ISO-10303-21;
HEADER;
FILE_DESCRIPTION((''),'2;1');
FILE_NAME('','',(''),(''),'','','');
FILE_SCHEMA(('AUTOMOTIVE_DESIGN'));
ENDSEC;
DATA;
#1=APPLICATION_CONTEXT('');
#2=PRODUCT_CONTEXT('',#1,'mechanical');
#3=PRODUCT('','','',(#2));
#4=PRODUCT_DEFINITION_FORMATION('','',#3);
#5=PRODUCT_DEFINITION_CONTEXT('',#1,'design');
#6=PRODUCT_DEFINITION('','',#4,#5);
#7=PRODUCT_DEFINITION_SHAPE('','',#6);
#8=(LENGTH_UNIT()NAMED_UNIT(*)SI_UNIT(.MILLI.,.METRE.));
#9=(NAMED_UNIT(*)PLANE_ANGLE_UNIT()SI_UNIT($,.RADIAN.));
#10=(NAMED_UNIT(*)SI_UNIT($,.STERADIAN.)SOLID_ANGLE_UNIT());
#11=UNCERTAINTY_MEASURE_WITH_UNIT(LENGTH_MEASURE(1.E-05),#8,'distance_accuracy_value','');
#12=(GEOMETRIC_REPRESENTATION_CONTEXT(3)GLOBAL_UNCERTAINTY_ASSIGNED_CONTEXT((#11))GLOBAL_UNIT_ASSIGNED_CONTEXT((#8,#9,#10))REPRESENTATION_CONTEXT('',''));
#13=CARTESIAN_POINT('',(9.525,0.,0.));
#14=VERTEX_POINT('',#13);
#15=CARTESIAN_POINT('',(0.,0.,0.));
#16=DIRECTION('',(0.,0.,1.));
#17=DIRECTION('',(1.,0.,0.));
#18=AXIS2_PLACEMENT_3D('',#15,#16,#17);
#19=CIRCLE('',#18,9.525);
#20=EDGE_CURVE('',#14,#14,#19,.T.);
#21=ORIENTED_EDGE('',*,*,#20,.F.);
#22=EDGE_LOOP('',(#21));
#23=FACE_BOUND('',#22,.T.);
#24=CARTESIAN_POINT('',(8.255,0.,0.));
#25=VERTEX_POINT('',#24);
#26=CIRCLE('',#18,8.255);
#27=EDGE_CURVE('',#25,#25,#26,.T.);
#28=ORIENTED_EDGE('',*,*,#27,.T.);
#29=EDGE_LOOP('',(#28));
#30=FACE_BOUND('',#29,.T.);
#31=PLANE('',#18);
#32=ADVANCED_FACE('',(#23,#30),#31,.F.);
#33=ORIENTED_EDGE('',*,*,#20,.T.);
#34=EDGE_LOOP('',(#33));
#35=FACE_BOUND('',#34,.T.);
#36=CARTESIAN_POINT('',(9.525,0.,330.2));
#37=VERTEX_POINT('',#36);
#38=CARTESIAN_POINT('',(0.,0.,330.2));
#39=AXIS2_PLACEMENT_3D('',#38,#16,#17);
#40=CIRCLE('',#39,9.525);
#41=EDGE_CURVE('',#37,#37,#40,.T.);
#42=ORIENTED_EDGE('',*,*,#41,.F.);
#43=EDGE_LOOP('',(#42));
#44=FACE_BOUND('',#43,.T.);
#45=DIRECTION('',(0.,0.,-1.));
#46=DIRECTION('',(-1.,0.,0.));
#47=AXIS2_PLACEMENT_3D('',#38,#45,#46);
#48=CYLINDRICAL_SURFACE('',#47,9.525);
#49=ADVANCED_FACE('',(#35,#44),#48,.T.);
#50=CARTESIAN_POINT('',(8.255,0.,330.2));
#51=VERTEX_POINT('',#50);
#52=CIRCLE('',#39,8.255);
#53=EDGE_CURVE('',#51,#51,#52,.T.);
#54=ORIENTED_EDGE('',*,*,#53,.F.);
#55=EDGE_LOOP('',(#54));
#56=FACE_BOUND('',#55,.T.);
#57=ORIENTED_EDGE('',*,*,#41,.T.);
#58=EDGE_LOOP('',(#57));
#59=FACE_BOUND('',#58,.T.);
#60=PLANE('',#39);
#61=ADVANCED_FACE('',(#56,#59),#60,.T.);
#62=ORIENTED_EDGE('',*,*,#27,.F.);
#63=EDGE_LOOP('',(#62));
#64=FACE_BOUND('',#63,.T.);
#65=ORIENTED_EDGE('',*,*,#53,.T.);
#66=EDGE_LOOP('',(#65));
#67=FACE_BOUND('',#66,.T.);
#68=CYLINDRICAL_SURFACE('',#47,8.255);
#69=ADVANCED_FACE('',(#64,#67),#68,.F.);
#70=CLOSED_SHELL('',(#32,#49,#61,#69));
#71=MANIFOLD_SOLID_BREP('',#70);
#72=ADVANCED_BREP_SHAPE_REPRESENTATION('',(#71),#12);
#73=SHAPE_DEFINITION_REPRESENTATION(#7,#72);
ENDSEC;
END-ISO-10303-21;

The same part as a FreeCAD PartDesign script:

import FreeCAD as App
import Part
import Sketcher

V = App.Vector
Q = App.Units.Quantity

doc = App.newDocument("Part")
body = doc.addObject("PartDesign::Body", "Body")

sketch1 = body.newObject("Sketcher::SketchObject", "Sketch")
sketch1.AttachmentSupport = (doc.getObject("XY_Plane"), [""])
sketch1.MapMode = "FlatFace"
sketch1.addGeometry(Part.Circle(V(0, 0, 0), V(0, 0, 1), 10), False)
sketch1.addGeometry(Part.Circle(V(0, 0, 0), V(0, 0, 1), 8), False)
sketch1.addConstraint(Sketcher.Constraint("Coincident", 0, 3, -1, 1))
sketch1.addConstraint(Sketcher.Constraint("Coincident", 1, 3, -1, 1))
sketch1.addConstraint(Sketcher.Constraint("Diameter", 0, Q("0.75 in")))
sketch1.addConstraint(Sketcher.Constraint("Diameter", 1, Q("0.65 in")))
pad1 = body.newObject("PartDesign::Pad", "Pad")
pad1.Profile = sketch1
pad1.Length = Q("13 in")

doc.recompute()
